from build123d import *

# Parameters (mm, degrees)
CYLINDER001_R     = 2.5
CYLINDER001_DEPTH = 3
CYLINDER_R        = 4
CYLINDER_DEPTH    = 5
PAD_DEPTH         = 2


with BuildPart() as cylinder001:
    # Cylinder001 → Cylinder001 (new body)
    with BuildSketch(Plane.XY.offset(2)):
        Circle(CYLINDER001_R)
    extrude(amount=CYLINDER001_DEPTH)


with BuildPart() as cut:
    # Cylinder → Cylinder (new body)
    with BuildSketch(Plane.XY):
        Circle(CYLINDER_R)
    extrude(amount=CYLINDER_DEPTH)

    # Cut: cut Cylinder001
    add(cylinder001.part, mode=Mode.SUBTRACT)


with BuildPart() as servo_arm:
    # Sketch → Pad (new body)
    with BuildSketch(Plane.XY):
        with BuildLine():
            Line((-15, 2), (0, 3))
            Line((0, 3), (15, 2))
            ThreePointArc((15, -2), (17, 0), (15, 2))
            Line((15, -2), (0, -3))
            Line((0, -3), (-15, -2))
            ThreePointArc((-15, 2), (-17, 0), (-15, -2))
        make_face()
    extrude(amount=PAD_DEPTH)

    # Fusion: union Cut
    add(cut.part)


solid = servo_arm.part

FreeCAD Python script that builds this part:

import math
import FreeCAD as App
import Part
import Sketcher
from FreeCAD import Vector
Q = App.Units.Quantity

doc = App.newDocument("Part")
body = doc.addObject("PartDesign::Body", "Body")

sketch1 = body.newObject("Sketcher::SketchObject", "Sketch")
sketch1.AttachmentSupport = (doc.getObject("XY_Plane"), [""])
sketch1.MapMode = "FlatFace"
sketch1.AttachmentOffset = App.Placement(Vector(0, 0, 2), App.Rotation())
sketch1.addGeometry(Part.Circle(Vector(0, 0, 0), Vector(0, 0, 1), 2.5), False)
sketch1.addConstraint([
    Sketcher.Constraint("Coincident", 0, 3, -1, 1),
    Sketcher.Constraint("Diameter", 0, Q("5 mm")),
])
pad1 = body.newObject("PartDesign::Pad", "Pad")
pad1.Profile = sketch1
pad1.Length = 3
body2 = doc.addObject("PartDesign::Body", "Body001")

sketch2 = body2.newObject("Sketcher::SketchObject", "Sketch001")
sketch2.AttachmentSupport = (doc.getObject("XY_Plane001"), [""])
sketch2.MapMode = "FlatFace"
sketch2.addGeometry(Part.Circle(Vector(0, 0, 0), Vector(0, 0, 1), 4), False)
sketch2.addConstraint([
    Sketcher.Constraint("Coincident", 0, 3, -1, 1),
    Sketcher.Constraint("Diameter", 0, Q("8 mm")),
])
pad2 = body2.newObject("PartDesign::Pad", "Pad001")
pad2.Profile = sketch2
pad2.Length = 5
doc.recompute()

boolean = body2.newObject("PartDesign::Boolean", "Boolean")
boolean.Type = "Cut"
boolean.addObjects([body])
body3 = doc.addObject("PartDesign::Body", "Body002")

sketch3 = body3.newObject("Sketcher::SketchObject", "Sketch002")
sketch3.AttachmentSupport = (doc.getObject("XY_Plane002"), [""])
sketch3.MapMode = "FlatFace"
sketch3.addGeometry([
    Part.LineSegment(Vector(0, 3, 0), Vector(-15, 2, 0)),
    Part.ArcOfCircle(Part.Circle(Vector(-15, 0, 0), Vector(0, 0, 1), 2), math.radians(90), math.radians(270)),
    Part.LineSegment(Vector(-15, -2, 0), Vector(0, -3, 0)),
    Part.LineSegment(Vector(0, -3, 0), Vector(15, -2, 0)),
    Part.ArcOfCircle(Part.Circle(Vector(15, 0, 0), Vector(0, 0, 1), 2), math.radians(-90), math.radians(90)),
    Part.LineSegment(Vector(15, 2, 0), Vector(0, 3, 0)),
], False)
sketch3.addConstraint([
    Sketcher.Constraint("Coincident", 0, 2, 1, 1),
    Sketcher.Constraint("Coincident", 1, 2, 2, 1),
    Sketcher.Constraint("Coincident", 2, 2, 3, 1),
    Sketcher.Constraint("Coincident", 3, 2, 4, 1),
    Sketcher.Constraint("Coincident", 4, 2, 5, 1),
    Sketcher.Constraint("Coincident", 5, 2, 0, 1),
    Sketcher.Constraint("Equal", 1, 4),
    Sketcher.Constraint("Symmetric", 1, 3, 4, 3, -1, 1),
    Sketcher.Constraint("Symmetric", 2, 2, 5, 2, -1, 1),
    Sketcher.Constraint("Symmetric", 1, 2, 3, 2, -2),
    Sketcher.Constraint("PointOnObject", 2, 2, -2),
    Sketcher.Constraint("Parallel", 0, 3),
    Sketcher.Constraint("Parallel", 2, 5),
    Sketcher.Constraint("Vertical", 1, 3, 0, 2),
    Sketcher.Constraint("Radius", 1, Q("2 mm")),
    Sketcher.Constraint("DistanceX", 1, 3, -1, 1, Q("15 mm")),
    Sketcher.Constraint("DistanceY", 2, 2, -1, 1, Q("3 mm")),
])
pad3 = body3.newObject("PartDesign::Pad", "Pad002")
pad3.Profile = sketch3
pad3.Length = 2
doc.recompute()

boolean2 = body3.newObject("PartDesign::Boolean", "Boolean001")
boolean2.Type = "Fuse"
boolean2.addObjects([body2])

doc.recompute()
